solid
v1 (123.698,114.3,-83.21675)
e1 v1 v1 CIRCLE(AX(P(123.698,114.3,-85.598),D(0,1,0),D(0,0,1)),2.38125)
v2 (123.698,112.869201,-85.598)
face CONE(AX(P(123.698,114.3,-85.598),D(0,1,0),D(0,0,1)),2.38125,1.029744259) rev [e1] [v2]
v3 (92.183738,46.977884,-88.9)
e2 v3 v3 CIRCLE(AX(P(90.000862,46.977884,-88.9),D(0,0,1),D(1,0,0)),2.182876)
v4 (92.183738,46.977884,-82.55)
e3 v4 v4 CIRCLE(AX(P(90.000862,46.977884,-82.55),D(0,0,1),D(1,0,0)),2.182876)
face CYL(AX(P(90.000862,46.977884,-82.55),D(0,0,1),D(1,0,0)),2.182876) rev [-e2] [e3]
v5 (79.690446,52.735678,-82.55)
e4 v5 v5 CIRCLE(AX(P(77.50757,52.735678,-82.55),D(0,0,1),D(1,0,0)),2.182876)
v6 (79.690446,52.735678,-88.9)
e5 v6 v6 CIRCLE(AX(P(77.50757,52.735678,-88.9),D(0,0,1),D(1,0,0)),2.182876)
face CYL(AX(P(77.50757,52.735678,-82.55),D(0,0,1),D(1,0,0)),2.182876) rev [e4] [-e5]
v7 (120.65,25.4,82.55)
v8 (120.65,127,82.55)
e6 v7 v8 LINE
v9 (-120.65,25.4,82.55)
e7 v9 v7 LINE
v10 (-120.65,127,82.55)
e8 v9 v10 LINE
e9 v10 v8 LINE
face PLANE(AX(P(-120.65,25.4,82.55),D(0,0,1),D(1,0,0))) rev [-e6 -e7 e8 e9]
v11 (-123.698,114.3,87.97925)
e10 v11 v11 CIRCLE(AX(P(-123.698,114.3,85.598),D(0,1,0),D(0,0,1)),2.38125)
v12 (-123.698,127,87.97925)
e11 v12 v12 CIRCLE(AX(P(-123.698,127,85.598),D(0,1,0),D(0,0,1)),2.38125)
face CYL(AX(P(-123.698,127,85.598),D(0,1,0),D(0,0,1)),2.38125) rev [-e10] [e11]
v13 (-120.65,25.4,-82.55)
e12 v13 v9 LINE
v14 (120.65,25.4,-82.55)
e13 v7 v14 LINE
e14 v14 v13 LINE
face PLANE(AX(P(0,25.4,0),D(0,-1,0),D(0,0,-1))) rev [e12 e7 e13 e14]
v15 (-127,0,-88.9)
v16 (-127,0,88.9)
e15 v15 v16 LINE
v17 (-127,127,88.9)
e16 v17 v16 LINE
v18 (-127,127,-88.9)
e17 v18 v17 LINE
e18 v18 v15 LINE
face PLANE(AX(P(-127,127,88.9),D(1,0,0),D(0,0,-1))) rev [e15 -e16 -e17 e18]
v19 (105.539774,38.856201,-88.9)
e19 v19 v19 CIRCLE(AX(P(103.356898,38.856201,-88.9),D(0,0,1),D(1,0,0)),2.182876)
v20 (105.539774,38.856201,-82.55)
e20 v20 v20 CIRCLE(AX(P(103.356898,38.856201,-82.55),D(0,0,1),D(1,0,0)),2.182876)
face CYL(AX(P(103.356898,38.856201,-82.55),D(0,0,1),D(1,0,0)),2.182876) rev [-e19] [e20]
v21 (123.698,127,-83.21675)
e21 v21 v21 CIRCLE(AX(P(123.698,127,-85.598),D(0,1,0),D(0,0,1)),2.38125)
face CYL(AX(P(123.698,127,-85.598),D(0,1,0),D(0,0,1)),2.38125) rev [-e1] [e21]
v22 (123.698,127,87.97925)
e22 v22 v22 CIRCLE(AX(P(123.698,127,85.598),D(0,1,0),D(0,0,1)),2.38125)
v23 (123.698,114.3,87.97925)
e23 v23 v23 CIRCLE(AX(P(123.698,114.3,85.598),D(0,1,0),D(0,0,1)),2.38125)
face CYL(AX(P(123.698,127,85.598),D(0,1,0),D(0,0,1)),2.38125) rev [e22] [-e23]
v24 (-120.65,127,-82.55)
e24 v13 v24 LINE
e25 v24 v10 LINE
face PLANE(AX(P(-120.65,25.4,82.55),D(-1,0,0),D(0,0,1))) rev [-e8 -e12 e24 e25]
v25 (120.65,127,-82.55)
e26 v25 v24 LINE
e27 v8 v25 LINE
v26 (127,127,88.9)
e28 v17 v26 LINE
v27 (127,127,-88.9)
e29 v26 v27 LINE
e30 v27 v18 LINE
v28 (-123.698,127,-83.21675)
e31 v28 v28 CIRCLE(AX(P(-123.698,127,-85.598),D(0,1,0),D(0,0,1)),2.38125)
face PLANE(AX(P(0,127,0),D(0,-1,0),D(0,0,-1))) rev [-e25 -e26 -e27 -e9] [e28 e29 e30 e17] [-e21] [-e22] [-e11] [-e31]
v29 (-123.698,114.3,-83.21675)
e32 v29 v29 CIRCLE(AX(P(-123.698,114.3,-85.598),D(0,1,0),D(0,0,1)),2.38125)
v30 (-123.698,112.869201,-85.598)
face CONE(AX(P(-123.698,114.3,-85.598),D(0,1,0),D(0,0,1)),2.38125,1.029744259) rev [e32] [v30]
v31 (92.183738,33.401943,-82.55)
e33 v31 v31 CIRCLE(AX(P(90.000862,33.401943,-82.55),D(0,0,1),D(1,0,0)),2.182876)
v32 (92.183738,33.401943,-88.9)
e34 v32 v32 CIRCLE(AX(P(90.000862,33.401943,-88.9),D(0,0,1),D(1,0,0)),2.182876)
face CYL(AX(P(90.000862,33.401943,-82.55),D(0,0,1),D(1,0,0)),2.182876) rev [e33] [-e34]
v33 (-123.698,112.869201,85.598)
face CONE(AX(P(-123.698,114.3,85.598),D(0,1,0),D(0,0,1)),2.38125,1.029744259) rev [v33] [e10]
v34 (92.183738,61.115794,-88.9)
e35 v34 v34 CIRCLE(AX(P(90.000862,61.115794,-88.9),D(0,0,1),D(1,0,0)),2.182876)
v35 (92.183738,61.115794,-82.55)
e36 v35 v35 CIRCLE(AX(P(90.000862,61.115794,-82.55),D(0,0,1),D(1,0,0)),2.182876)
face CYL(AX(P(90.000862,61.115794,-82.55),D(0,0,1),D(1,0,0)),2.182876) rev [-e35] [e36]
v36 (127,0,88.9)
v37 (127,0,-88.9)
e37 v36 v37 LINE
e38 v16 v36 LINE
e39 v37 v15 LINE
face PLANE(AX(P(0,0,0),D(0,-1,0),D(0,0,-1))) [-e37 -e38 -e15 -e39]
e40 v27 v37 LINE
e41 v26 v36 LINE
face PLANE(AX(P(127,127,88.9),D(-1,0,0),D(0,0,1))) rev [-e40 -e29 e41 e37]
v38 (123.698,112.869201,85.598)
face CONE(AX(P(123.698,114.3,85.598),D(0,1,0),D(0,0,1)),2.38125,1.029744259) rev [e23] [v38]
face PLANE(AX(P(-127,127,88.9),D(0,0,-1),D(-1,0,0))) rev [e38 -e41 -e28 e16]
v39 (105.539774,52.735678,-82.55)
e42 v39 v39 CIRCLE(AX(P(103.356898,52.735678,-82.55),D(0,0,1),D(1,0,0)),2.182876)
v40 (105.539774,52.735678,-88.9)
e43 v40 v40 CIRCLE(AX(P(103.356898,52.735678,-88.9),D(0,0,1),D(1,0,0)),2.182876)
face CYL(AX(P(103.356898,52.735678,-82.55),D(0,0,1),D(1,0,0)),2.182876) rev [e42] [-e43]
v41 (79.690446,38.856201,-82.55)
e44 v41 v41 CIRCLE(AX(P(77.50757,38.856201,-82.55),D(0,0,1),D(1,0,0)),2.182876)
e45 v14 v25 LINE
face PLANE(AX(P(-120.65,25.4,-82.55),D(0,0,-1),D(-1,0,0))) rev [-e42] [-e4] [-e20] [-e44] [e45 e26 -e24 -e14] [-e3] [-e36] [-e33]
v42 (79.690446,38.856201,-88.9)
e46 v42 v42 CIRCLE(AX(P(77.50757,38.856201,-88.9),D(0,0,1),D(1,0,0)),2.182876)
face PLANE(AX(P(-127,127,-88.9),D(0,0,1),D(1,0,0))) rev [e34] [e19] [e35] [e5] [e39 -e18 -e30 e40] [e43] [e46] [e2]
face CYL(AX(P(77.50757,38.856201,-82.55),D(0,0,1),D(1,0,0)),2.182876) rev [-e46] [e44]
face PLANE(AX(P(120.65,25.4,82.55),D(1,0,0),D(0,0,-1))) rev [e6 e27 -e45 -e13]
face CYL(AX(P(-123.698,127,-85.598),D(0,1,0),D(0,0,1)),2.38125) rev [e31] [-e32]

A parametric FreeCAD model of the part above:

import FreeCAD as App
import Part
import Sketcher
from FreeCAD import Vector
Q = App.Units.Quantity


def add_polygon(sketch, points):
    """Adds a closed chain of lines whose ends are joined by coincident constraints."""
    first, n = sketch.GeometryCount, len(points)
    for a, b in zip(points, points[1:] + points[:1]):
        sketch.addGeometry(Part.LineSegment(App.Vector(*a, 0), App.Vector(*b, 0)), False)
    for i in range(n):
        sketch.addConstraint(Sketcher.Constraint("Coincident", first + i, 2, first + (i + 1) % n, 1))

doc = App.newDocument("Part")
body = doc.addObject("PartDesign::Body", "Body")

sketch1 = doc.addObject("Sketcher::SketchObject", "Sketch")
body.addObject(sketch1)
sketch1.AttachmentSupport = (doc.XZ_Plane, [""])
sketch1.MapMode = "FlatFace"
add_polygon(sketch1, [(-127, -89), (-127, 89), (127, 89), (127, -89)])
sketch1.addConstraint([
    Sketcher.Constraint("Vertical", 0),
    Sketcher.Constraint("Horizontal", 1),
    Sketcher.Constraint("Vertical", 2),
    Sketcher.Constraint("Horizontal", 3),
    Sketcher.Constraint("Symmetric", 0, 2, 2, 2, -1, 1),
    Sketcher.Constraint("DistanceX", 1, 1, 1, 2, Q("10 in")),
    Sketcher.Constraint("DistanceY", 0, 1, 0, 2, Q("7 in")),
])
pad1 = doc.addObject("PartDesign::Pad", "Pad")
body.addObject(pad1)
pad1.Profile = sketch1
pad1.Length = Q("5 in")
pad1.Reversed = True

sketch2 = doc.addObject("Sketcher::SketchObject", "Sketch001")
body.addObject(sketch2)
sketch2.AttachmentSupport = (doc.XZ_Plane, [""])
sketch2.MapMode = "FlatFace"
sketch2.AttachmentOffset = App.Placement(Vector(0, 0, -5 * 25.4), App.Rotation())
add_polygon(sketch2, [(-121, -83), (-121, 83), (121, 83), (121, -83)])
sketch2.addConstraint([
    Sketcher.Constraint("Vertical", 0),
    Sketcher.Constraint("Horizontal", 1),
    Sketcher.Constraint("Vertical", 2),
    Sketcher.Constraint("Horizontal", 3),
    Sketcher.Constraint("Symmetric", 0, 2, 2, 2, -1, 1),
    Sketcher.Constraint("DistanceX", 1, 1, 1, 2, Q("9.5 in")),
    Sketcher.Constraint("DistanceY", 0, 1, 0, 2, Q("6.5 in")),
])
pocket1 = doc.addObject("PartDesign::Pocket", "Pocket")
body.addObject(pocket1)
pocket1.Profile = sketch2
pocket1.Length = Q("4 in")
pocket1.Reversed = True

sketch3 = doc.addObject("Sketcher::SketchObject", "Sketch002")
body.addObject(sketch3)
sketch3.AttachmentSupport = (doc.XZ_Plane, [""])
sketch3.MapMode = "FlatFace"
sketch3.AttachmentOffset = App.Placement(Vector(0, 0, -5 * 25.4), App.Rotation())
sketch3.addGeometry(Part.Circle(Vector(-123.7, -85.6, 0), Vector(0, 0, 1), 2.4), False)
sketch3.addConstraint([
    Sketcher.Constraint("Diameter", 0, Q("0.1875 in")),
    Sketcher.Constraint("DistanceX", 0, 3, -1, 1, Q("4.87 in")),
    Sketcher.Constraint("DistanceY", 0, 3, -1, 1, Q("3.37 in")),
])
doc.recompute()
hole = doc.addObject("PartDesign::Hole", "Hole")
body.addObject(hole)
hole.Profile = sketch3
hole.ThreadType = "None"
hole.Diameter = Q("0.1875 in")
hole.DepthType = "Dimension"
hole.Depth = Q("0.5 in")
hole.DrillPoint = "Angled"
hole.DrillPointAngle = 118
hole.Reversed = True

sketch4 = doc.addObject("Sketcher::SketchObject", "Sketch003")
body.addObject(sketch4)
sketch4.AttachmentSupport = (doc.XZ_Plane, [""])
sketch4.MapMode = "FlatFace"
sketch4.AttachmentOffset = App.Placement(Vector(0, 0, -5 * 25.4), App.Rotation())
sketch4.addGeometry(Part.Circle(Vector(123.7, -85.6, 0), Vector(0, 0, 1), 2.4), False)
sketch4.addConstraint([
    Sketcher.Constraint("Diameter", 0, Q("0.1875 in")),
    Sketcher.Constraint("DistanceX", -1, 1, 0, 3, Q("4.87 in")),
    Sketcher.Constraint("DistanceY", 0, 3, -1, 1, Q("3.37 in")),
])
doc.recompute()
hole2 = doc.addObject("PartDesign::Hole", "Hole001")
body.addObject(hole2)
hole2.Profile = sketch4
hole2.ThreadType = "None"
hole2.Diameter = Q("0.1875 in")
hole2.DepthType = "Dimension"
hole2.Depth = Q("0.5 in")
hole2.DrillPoint = "Angled"
hole2.DrillPointAngle = 118
hole2.Reversed = True

sketch5 = doc.addObject("Sketcher::SketchObject", "Sketch004")
body.addObject(sketch5)
sketch5.AttachmentSupport = (doc.XZ_Plane, [""])
sketch5.MapMode = "FlatFace"
sketch5.AttachmentOffset = App.Placement(Vector(0, 0, -5 * 25.4), App.Rotation())
sketch5.addGeometry(Part.Circle(Vector(-123.7, 85.6, 0), Vector(0, 0, 1), 2.4), False)
sketch5.addConstraint([
    Sketcher.Constraint("Diameter", 0, Q("0.1875 in")),
    Sketcher.Constraint("DistanceX", 0, 3, -1, 1, Q("4.87 in")),
    Sketcher.Constraint("DistanceY", -1, 1, 0, 3, Q("3.37 in")),
])
doc.recompute()
hole3 = doc.addObject("PartDesign::Hole", "Hole002")
body.addObject(hole3)
hole3.Profile = sketch5
hole3.ThreadType = "None"
hole3.Diameter = Q("0.1875 in")
hole3.DepthType = "Dimension"
hole3.Depth = Q("0.5 in")
hole3.DrillPoint = "Angled"
hole3.DrillPointAngle = 118
hole3.Reversed = True

sketch6 = doc.addObject("Sketcher::SketchObject", "Sketch005")
body.addObject(sketch6)
sketch6.AttachmentSupport = (doc.XZ_Plane, [""])
sketch6.MapMode = "FlatFace"
sketch6.AttachmentOffset = App.Placement(Vector(0, 0, -5 * 25.4), App.Rotation())
sketch6.addGeometry(Part.Circle(Vector(123.7, 85.6, 0), Vector(0, 0, 1), 2.4), False)
sketch6.addConstraint([
    Sketcher.Constraint("Diameter", 0, Q("0.1875 in")),
    Sketcher.Constraint("DistanceX", -1, 1, 0, 3, Q("4.87 in")),
    Sketcher.Constraint("DistanceY", -1, 1, 0, 3, Q("3.37 in")),
])
doc.recompute()
hole4 = doc.addObject("PartDesign::Hole", "Hole003")
body.addObject(hole4)
hole4.Profile = sketch6
hole4.ThreadType = "None"
hole4.Diameter = Q("0.1875 in")
hole4.DepthType = "Dimension"
hole4.Depth = Q("0.5 in")
hole4.DrillPoint = "Angled"
hole4.DrillPointAngle = 118
hole4.Reversed = True

sketch7 = doc.addObject("Sketcher::SketchObject", "Sketch006")
body.addObject(sketch7)
sketch7.AttachmentSupport = (doc.XY_Plane, [""])
sketch7.MapMode = "FlatFace"
sketch7.AttachmentOffset = App.Placement(Vector(0, 0, -3.25 * 25.4), App.Rotation())
sketch7.addGeometry([
    Part.Circle(Vector(90, 33.4, 0), Vector(0, 0, 1), 2.2),
    Part.Circle(Vector(90, 61.1, 0), Vector(0, 0, 1), 2.2),
    Part.Circle(Vector(77.5, 52.7, 0), Vector(0, 0, 1), 2.2),
    Part.Circle(Vector(77.5, 38.9, 0), Vector(0, 0, 1), 2.2),
    Part.Circle(Vector(103.4, 52.7, 0), Vector(0, 0, 1), 2.2),
    Part.Circle(Vector(103.4, 38.9, 0), Vector(0, 0, 1), 2.2),
    Part.Circle(Vector(90, 47, 0), Vector(0, 0, 1), 2.2),
], False)
sketch7.addConstraint([
    Sketcher.Constraint("Equal", 0, 1),
    Sketcher.Constraint("Equal", 1, 2),
    Sketcher.Constraint("Equal", 2, 3),
    Sketcher.Constraint("Equal", 3, 4),
    Sketcher.Constraint("Equal", 4, 5),
    Sketcher.Constraint("Equal", 5, 6),
    Sketcher.Constraint("Horizontal", 2, 3, 4, 3),
    Sketcher.Constraint("Horizontal", 3, 3, 5, 3),
    Sketcher.Constraint("Vertical", 0, 3, 1, 3),
    Sketcher.Constraint("Vertical", 2, 3, 3, 3),
    Sketcher.Constraint("Vertical", 4, 3, 5, 3),
    Sketcher.Constraint("Vertical", 1, 3, 6, 3),
    Sketcher.Constraint("Diameter", 0, 4.365752),
    Sketcher.Constraint("DistanceY", -1, 1, 3, 3, 38.856201),
    Sketcher.Constraint("DistanceX", -1, 1, 4, 3, 103.356898),
    Sketcher.Constraint("DistanceX", -1, 1, 0, 3, 90.000862),
    Sketcher.Constraint("DistanceX", -1, 1, 2, 3, 77.50757),
    Sketcher.Constraint("DistanceY", -1, 1, 2, 3, 52.735678),
    Sketcher.Constraint("DistanceY", 0, 3, 1, 3, 27.713851),
    Sketcher.Constraint("DistanceY", 0, 3, 3, 3, 5.454258),
    Sketcher.Constraint("DistanceY", 0, 3, 6, 3, 13.575941),
])
doc.recompute()
hole5 = doc.addObject("PartDesign::Hole", "Hole004")
body.addObject(hole5)
hole5.Profile = sketch7
hole5.ThreadType = "None"
hole5.Diameter = 4.365752
hole5.DepthType = "Dimension"
hole5.Depth = Q("0.25 in")
hole5.DrillPoint = "Flat"

doc.recompute()
